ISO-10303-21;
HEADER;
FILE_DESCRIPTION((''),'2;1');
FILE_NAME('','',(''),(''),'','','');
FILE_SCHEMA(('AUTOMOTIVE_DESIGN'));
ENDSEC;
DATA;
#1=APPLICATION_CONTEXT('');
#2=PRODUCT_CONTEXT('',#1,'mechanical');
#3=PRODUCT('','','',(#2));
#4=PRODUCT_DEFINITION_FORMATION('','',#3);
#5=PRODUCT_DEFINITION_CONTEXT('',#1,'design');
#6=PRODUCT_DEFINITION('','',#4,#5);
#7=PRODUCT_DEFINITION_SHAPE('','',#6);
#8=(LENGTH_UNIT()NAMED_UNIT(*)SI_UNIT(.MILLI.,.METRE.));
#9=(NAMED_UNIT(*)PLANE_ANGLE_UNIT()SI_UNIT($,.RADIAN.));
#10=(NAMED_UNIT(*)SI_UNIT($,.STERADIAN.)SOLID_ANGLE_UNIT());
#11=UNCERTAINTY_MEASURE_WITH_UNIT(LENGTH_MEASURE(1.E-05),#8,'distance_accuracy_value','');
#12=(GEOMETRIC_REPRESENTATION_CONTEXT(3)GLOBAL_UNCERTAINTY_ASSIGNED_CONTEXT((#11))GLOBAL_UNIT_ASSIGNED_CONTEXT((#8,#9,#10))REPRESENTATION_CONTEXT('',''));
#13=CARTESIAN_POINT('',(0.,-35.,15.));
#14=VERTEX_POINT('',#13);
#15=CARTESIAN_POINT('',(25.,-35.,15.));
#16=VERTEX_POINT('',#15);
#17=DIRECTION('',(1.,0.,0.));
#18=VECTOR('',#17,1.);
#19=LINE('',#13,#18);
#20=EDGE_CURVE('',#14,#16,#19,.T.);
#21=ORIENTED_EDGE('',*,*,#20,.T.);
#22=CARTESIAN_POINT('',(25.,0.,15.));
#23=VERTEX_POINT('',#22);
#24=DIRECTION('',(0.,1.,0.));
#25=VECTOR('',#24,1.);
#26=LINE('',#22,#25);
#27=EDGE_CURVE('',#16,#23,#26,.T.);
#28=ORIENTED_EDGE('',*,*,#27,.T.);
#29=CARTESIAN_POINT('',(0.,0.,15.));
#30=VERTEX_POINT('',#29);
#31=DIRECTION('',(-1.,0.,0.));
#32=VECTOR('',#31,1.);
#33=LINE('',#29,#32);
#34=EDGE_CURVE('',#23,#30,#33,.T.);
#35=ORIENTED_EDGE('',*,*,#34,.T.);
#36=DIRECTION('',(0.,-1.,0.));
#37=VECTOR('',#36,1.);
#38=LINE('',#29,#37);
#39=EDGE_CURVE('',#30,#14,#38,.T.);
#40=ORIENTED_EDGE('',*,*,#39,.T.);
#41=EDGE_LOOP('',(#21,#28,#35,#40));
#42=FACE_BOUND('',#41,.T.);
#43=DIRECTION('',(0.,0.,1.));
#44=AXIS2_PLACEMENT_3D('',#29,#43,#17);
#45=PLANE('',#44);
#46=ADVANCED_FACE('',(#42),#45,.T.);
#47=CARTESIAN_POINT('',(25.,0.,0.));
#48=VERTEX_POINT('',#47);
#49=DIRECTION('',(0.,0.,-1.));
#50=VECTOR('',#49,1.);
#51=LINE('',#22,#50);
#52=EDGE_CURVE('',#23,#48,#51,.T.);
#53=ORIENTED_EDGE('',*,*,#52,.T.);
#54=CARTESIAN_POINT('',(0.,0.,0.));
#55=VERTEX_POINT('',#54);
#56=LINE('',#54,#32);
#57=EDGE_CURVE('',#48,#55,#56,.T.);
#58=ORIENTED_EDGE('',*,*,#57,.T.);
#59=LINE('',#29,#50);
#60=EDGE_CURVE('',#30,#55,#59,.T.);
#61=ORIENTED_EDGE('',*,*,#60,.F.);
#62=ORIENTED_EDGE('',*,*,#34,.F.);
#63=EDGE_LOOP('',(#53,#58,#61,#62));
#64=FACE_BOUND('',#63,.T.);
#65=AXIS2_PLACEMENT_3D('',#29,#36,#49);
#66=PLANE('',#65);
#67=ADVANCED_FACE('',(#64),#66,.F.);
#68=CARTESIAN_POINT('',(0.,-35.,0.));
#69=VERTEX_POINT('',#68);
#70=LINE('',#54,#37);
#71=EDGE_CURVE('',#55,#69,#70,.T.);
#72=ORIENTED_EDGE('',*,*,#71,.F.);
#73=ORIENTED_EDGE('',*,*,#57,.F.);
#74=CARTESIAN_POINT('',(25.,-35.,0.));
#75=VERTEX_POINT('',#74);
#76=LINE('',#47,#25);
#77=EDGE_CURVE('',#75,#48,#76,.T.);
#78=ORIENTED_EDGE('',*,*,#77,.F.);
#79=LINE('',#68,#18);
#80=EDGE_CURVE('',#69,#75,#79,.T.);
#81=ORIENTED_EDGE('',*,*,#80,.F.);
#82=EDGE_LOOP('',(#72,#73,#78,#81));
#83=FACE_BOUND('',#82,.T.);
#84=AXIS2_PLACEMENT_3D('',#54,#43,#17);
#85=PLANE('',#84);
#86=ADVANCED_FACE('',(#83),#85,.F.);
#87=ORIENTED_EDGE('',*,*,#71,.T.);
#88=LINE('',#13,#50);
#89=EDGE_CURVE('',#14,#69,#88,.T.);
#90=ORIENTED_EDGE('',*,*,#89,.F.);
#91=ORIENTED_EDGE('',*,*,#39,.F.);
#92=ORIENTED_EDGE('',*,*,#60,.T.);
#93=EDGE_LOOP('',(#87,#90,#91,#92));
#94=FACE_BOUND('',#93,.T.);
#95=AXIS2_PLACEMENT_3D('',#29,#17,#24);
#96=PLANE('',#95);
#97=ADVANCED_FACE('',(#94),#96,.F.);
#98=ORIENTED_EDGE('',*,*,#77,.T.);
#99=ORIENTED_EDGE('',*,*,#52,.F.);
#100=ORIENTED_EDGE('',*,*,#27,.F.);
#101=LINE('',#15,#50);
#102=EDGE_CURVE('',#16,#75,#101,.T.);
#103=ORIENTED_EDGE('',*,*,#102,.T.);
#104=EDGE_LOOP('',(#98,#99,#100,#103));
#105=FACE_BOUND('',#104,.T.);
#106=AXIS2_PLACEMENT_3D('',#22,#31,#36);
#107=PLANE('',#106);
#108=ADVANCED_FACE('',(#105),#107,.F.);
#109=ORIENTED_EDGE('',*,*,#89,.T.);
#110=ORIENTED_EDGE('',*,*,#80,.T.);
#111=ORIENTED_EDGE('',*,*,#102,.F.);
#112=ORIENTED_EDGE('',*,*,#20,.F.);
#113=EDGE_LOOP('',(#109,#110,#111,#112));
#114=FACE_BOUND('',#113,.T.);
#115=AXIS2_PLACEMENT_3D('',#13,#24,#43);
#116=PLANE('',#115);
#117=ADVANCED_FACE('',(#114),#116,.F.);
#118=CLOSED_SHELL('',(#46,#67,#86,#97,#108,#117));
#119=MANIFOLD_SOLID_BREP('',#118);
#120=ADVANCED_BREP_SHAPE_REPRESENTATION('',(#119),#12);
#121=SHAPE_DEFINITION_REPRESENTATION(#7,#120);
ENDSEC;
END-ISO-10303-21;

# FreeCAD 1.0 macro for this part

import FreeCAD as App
import Part
import Sketcher
from FreeCAD import Vector

doc = App.newDocument("Part")
params = doc.addObject("Spreadsheet::Sheet", "Params")
for row, (alias, value) in enumerate([
    ("sketch1_width", "25 mm"),
    ("sketch1_height", "35 mm"),
    ("pad1_length", "15 mm"),
], start=1):
    params.set(f"A{row}", alias)
    params.set(f"B{row}", "=" + value)
    params.setAlias(f"B{row}", alias)

body = doc.addObject("PartDesign::Body", "Body")

# Sketch on XY plane
sketch1 = body.newObject("Sketcher::SketchObject", "Sketch")
sketch1.AttachmentSupport = (doc.getObject("XY_Plane"), [""])
sketch1.MapMode = "FlatFace"
sketch1.addGeometry([
    Part.LineSegment(Vector(0, 0, 0), Vector(0, -35, 0)),
    Part.LineSegment(Vector(0, -35, 0), Vector(25, -35, 0)),
    Part.LineSegment(Vector(25, -35, 0), Vector(25, 0, 0)),
    Part.LineSegment(Vector(25, 0, 0), Vector(0, 0, 0)),
], False)
sketch1.addConstraint([
    Sketcher.Constraint("Coincident", 0, 2, 1, 1),
    Sketcher.Constraint("Coincident", 1, 2, 2, 1),
    Sketcher.Constraint("Coincident", 2, 2, 3, 1),
    Sketcher.Constraint("Coincident", 3, 2, 0, 1),
    Sketcher.Constraint("Vertical", 0),
    Sketcher.Constraint("Horizontal", 1),
    Sketcher.Constraint("Vertical", 2),
    Sketcher.Constraint("Horizontal", 3),
    Sketcher.Constraint("Coincident", 3, 2, -1, 1),
    Sketcher.Constraint("DistanceX", 1, 1, 1, 2, 25.0),
    Sketcher.Constraint("DistanceY", 0, 2, 0, 1, 35.0),
])
sketch1.setExpression("Constraints[9]", "Params.sketch1_width")
sketch1.setExpression("Constraints[10]", "Params.sketch1_height")
pad1 = body.newObject("PartDesign::Pad", "Pad")
pad1.Profile = sketch1
pad1.setExpression("Length", "Params.pad1_length")

doc.recompute()
